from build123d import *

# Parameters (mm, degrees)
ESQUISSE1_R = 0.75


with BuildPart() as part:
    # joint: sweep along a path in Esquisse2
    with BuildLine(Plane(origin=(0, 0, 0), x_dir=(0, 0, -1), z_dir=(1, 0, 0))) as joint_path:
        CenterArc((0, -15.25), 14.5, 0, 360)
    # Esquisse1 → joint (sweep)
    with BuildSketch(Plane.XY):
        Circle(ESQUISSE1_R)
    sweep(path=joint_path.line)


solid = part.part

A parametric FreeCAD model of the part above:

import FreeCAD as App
import Part
import Sketcher
Q = App.Units.Quantity

doc = App.newDocument("Part")
body = doc.addObject("PartDesign::Body", "Body")

sketch1 = body.newObject("Sketcher::SketchObject", "Sketch")
sketch1.AttachmentSupport = (doc.getObject("XY_Plane"), [""])
sketch1.MapMode = "FlatFace"
sketch1.addGeometry(Part.Circle(App.Vector(0, 0, 0), App.Vector(0, 0, 1), 0.75), False)
sketch1.addConstraint([
    Sketcher.Constraint("Coincident", 0, 3, -1, 1),
    Sketcher.Constraint("Diameter", 0, Q("1.5 mm")),
])

sketch2 = body.newObject("Sketcher::SketchObject", "Sketch001")
sketch2.AttachmentSupport = (doc.getObject("YZ_Plane"), [""])
sketch2.MapMode = "FlatFace"
sketch2.addGeometry(Part.Circle(App.Vector(-15.25, 0, 0), App.Vector(0, 0, 1), 14.5), False)
sketch2.addConstraint([
    Sketcher.Constraint("PointOnObject", 0, 3, -1),
    Sketcher.Constraint("Diameter", 0, Q("29 mm")),
    Sketcher.Constraint("DistanceX", 0, 3, -1, 1, Q("15.25 mm")),
])
doc.recompute()

additivepipe = body.newObject("PartDesign::AdditivePipe", "AdditivePipe")
additivepipe.Profile = sketch1
additivepipe.Spine = (sketch2, ["Edge1"])

doc.recompute()
